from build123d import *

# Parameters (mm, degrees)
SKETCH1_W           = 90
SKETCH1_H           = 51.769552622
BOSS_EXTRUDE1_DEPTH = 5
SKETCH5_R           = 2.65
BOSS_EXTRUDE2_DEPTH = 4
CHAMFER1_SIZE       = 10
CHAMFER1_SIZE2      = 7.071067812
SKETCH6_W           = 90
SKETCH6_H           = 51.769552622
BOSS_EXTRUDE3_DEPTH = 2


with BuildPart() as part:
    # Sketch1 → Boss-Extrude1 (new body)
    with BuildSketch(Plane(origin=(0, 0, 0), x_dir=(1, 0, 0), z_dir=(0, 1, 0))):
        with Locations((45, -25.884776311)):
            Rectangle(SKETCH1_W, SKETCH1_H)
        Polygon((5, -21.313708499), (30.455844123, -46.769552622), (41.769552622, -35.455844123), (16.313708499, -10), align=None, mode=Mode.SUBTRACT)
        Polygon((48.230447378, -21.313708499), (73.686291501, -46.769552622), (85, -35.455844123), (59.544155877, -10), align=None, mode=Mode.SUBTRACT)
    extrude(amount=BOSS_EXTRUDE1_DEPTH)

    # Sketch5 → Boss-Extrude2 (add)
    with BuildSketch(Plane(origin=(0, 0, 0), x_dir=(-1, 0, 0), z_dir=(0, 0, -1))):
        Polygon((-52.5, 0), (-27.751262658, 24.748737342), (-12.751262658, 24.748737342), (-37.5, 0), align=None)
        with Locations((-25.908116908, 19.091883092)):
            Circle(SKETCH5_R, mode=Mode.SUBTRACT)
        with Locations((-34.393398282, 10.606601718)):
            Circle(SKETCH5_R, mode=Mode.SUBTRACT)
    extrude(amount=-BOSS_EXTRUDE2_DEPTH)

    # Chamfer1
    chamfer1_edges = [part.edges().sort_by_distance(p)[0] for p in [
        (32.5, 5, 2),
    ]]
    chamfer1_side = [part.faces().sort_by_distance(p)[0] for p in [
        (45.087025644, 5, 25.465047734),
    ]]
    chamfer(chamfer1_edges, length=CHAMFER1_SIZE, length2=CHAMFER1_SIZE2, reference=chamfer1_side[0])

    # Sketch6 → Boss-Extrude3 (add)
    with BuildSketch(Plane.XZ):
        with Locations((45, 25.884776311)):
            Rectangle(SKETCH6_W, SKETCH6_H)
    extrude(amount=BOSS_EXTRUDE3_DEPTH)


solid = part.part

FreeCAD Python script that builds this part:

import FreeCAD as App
import Part
import Sketcher
from FreeCAD import Vector
Q = App.Units.Quantity


def edges_at(feature, points):
    """Names of the edges that pass closest to the given points."""
    edges = feature.Shape.Edges
    near = lambda p: min(range(len(edges)), key=lambda i: edges[i].distToShape(Part.Vertex(*p))[0])
    return sorted({f"Edge{near(p) + 1}" for p in points})

doc = App.newDocument("Part")
body = doc.addObject("PartDesign::Body", "Body")

# Sketch on XZ plane
sketch1 = doc.addObject("Sketcher::SketchObject", "Sketch")
body.addObject(sketch1)
sketch1.AttachmentSupport = (doc.XZ_Plane, [""])
sketch1.MapMode = "FlatFace"
sketch1.addGeometry([
    Part.LineSegment(Vector(0, 0, 0), Vector(0, 51.769553, 0)),  # 0
    Part.LineSegment(Vector(0, 51.769553, 0), Vector(90, 51.769553, 0)),  # 1
    Part.LineSegment(Vector(90, 51.769553, 0), Vector(90, 0, 0)),  # 2
    Part.LineSegment(Vector(90, 0, 0), Vector(0, 0, 0)),  # 3
    Part.LineSegment(Vector(30.455844, 46.769553, 0), Vector(5, 21.313708, 0)),  # 4
    Part.LineSegment(Vector(5, 21.313708, 0), Vector(16.313708, 10, 0)),  # 5
    Part.LineSegment(Vector(16.313708, 10, 0), Vector(41.769553, 35.455844, 0)),  # 6
    Part.LineSegment(Vector(41.769553, 35.455844, 0), Vector(30.455844, 46.769553, 0)),  # 7
    Part.LineSegment(Vector(73.686292, 46.769553, 0), Vector(48.230447, 21.313708, 0)),  # 8
    Part.LineSegment(Vector(48.230447, 21.313708, 0), Vector(59.544156, 10, 0)),  # 9
    Part.LineSegment(Vector(59.544156, 10, 0), Vector(85, 35.455844, 0)),  # 10
    Part.LineSegment(Vector(85, 35.455844, 0), Vector(73.686292, 46.769553, 0)),  # 11
], False)
sketch1.addConstraint([
    Sketcher.Constraint("Coincident", 0, 2, 1, 1),
    Sketcher.Constraint("Coincident", 1, 2, 2, 1),
    Sketcher.Constraint("Coincident", 2, 2, 3, 1),
    Sketcher.Constraint("Coincident", 3, 2, 0, 1),
    Sketcher.Constraint("Coincident", 4, 2, 5, 1),
    Sketcher.Constraint("Coincident", 5, 2, 6, 1),
    Sketcher.Constraint("Coincident", 6, 2, 7, 1),
    Sketcher.Constraint("Coincident", 7, 2, 4, 1),
    Sketcher.Constraint("Coincident", 8, 2, 9, 1),
    Sketcher.Constraint("Coincident", 9, 2, 10, 1),
    Sketcher.Constraint("Coincident", 10, 2, 11, 1),
    Sketcher.Constraint("Coincident", 11, 2, 8, 1),
    Sketcher.Constraint("Vertical", 0),
    Sketcher.Constraint("Horizontal", 1),
    Sketcher.Constraint("Vertical", 2),
    Sketcher.Constraint("Horizontal", 3),
    Sketcher.Constraint("Coincident", 3, 2, -1, 1),
    Sketcher.Constraint("Perpendicular", 4, 5),
    Sketcher.Constraint("Perpendicular", 5, 6),
    Sketcher.Constraint("Perpendicular", 6, 7),
    Sketcher.Constraint("Perpendicular", 7, 8),
    Sketcher.Constraint("Perpendicular", 8, 9),
    Sketcher.Constraint("Perpendicular", 9, 10),
    Sketcher.Constraint("Perpendicular", 10, 11),
    Sketcher.Constraint("Horizontal", 4, 2, 8, 2),
    Sketcher.Constraint("Horizontal", 5, 2, 9, 2),
    Sketcher.Constraint("Horizontal", 6, 2, 10, 2),
    Sketcher.Constraint("DistanceX", 1, 1, 1, 2, 90.0),
    Sketcher.Constraint("Angle", 4, Q("-135 deg")),
    Sketcher.Constraint("Distance", 4, 36.0),
    Sketcher.Constraint("Distance", 5, 16.0),
    Sketcher.Constraint("DistanceX", -1, 1, 4, 2, 5.0),
    Sketcher.Constraint("DistanceY", -1, 1, 5, 2, 10.0),
    Sketcher.Constraint("DistanceX", -1, 1, 10, 2, 85.0),
    Sketcher.Constraint("DistanceY", 7, 2, 0, 2, 5.0),
])
pad1 = doc.addObject("PartDesign::Pad", "Pad")
body.addObject(pad1)
pad1.Profile = sketch1
pad1.Length = 5
pad1.Reversed = True

# Sketch on XY plane
sketch2 = doc.addObject("Sketcher::SketchObject", "Sketch001")
body.addObject(sketch2)
sketch2.AttachmentSupport = (doc.XY_Plane, [""])
sketch2.MapMode = "FlatFace"
sketch2.addGeometry([
    Part.LineSegment(Vector(27.751263, 24.748737, 0), Vector(52.5, 0, 0)),  # 0
    Part.LineSegment(Vector(52.5, 0, 0), Vector(37.5, 0, 0)),  # 1
    Part.LineSegment(Vector(37.5, 0, 0), Vector(12.751263, 24.748737, 0)),  # 2
    Part.LineSegment(Vector(12.751263, 24.748737, 0), Vector(27.751263, 24.748737, 0)),  # 3
    Part.Circle(Vector(34.393398, 10.606602, 0), Vector(0, 0, 1), 2.65),  # 4
    Part.Circle(Vector(25.908117, 19.091883, 0), Vector(0, 0, 1), 2.65),  # 5
], False)
sketch2.addConstraint([
    Sketcher.Constraint("Coincident", 0, 2, 1, 1),
    Sketcher.Constraint("Coincident", 1, 2, 2, 1),
    Sketcher.Constraint("Coincident", 2, 2, 3, 1),
    Sketcher.Constraint("Coincident", 3, 2, 0, 1),
    Sketcher.Constraint("Horizontal", 1),
    Sketcher.Constraint("Horizontal", 3),
    Sketcher.Constraint("Equal", 4, 5),
    Sketcher.Constraint("PointOnObject", 0, 2, -1),
    Sketcher.Constraint("Parallel", 0, 2),
    Sketcher.Constraint("Diameter", 4, 5.3),
    Sketcher.Constraint("DistanceX", 1, 2, 1, 1, 15.0),
    Sketcher.Constraint("Angle", 0, Q("-45 deg")),
    Sketcher.Constraint("Distance", 0, 35.0),
    Sketcher.Constraint("DistanceX", -1, 1, 0, 2, 52.5),
    Sketcher.Constraint("DistanceX", -1, 1, 4, 3, 34.393398),
    Sketcher.Constraint("DistanceY", -1, 1, 4, 3, 10.606602),
    Sketcher.Constraint("DistanceX", 5, 3, 4, 3, 8.485281),
    Sketcher.Constraint("DistanceY", 4, 3, 5, 3, 8.485281),
])
pad2 = doc.addObject("PartDesign::Pad", "Pad001")
body.addObject(pad2)
pad2.Profile = sketch2
pad2.Length = 4
doc.recompute()

chamfer = doc.addObject("PartDesign::Chamfer", "Chamfer")
body.addObject(chamfer)
chamfer.Base = (pad2, edges_at(pad2, [(32.5, 5, 2)]))
chamfer.ChamferType = "Two distances"
chamfer.Size = 10
chamfer.Size2 = 7.071068

# Sketch on XZ plane
sketch3 = doc.addObject("Sketcher::SketchObject", "Sketch002")
body.addObject(sketch3)
sketch3.AttachmentSupport = (doc.XZ_Plane, [""])
sketch3.MapMode = "FlatFace"
sketch3.addGeometry([
    Part.LineSegment(Vector(0, 51.769553, 0), Vector(0, 0, 0)),
    Part.LineSegment(Vector(0, 0, 0), Vector(90, 0, 0)),
    Part.LineSegment(Vector(90, 0, 0), Vector(90, 51.769553, 0)),
    Part.LineSegment(Vector(90, 51.769553, 0), Vector(0, 51.769553, 0)),
], False)
sketch3.addConstraint([
    Sketcher.Constraint("Coincident", 0, 2, 1, 1),
    Sketcher.Constraint("Coincident", 1, 2, 2, 1),
    Sketcher.Constraint("Coincident", 2, 2, 3, 1),
    Sketcher.Constraint("Coincident", 3, 2, 0, 1),
    Sketcher.Constraint("Vertical", 0),
    Sketcher.Constraint("Horizontal", 1),
    Sketcher.Constraint("Vertical", 2),
    Sketcher.Constraint("Horizontal", 3),
    Sketcher.Constraint("Coincident", 0, 2, -1, 1),
    Sketcher.Constraint("DistanceX", 1, 1, 1, 2, 90.0),
    Sketcher.Constraint("DistanceY", 0, 2, 0, 1, 51.769553),
])
pad3 = doc.addObject("PartDesign::Pad", "Pad002")
body.addObject(pad3)
pad3.Profile = sketch3
pad3.Length = 2

doc.recompute()
